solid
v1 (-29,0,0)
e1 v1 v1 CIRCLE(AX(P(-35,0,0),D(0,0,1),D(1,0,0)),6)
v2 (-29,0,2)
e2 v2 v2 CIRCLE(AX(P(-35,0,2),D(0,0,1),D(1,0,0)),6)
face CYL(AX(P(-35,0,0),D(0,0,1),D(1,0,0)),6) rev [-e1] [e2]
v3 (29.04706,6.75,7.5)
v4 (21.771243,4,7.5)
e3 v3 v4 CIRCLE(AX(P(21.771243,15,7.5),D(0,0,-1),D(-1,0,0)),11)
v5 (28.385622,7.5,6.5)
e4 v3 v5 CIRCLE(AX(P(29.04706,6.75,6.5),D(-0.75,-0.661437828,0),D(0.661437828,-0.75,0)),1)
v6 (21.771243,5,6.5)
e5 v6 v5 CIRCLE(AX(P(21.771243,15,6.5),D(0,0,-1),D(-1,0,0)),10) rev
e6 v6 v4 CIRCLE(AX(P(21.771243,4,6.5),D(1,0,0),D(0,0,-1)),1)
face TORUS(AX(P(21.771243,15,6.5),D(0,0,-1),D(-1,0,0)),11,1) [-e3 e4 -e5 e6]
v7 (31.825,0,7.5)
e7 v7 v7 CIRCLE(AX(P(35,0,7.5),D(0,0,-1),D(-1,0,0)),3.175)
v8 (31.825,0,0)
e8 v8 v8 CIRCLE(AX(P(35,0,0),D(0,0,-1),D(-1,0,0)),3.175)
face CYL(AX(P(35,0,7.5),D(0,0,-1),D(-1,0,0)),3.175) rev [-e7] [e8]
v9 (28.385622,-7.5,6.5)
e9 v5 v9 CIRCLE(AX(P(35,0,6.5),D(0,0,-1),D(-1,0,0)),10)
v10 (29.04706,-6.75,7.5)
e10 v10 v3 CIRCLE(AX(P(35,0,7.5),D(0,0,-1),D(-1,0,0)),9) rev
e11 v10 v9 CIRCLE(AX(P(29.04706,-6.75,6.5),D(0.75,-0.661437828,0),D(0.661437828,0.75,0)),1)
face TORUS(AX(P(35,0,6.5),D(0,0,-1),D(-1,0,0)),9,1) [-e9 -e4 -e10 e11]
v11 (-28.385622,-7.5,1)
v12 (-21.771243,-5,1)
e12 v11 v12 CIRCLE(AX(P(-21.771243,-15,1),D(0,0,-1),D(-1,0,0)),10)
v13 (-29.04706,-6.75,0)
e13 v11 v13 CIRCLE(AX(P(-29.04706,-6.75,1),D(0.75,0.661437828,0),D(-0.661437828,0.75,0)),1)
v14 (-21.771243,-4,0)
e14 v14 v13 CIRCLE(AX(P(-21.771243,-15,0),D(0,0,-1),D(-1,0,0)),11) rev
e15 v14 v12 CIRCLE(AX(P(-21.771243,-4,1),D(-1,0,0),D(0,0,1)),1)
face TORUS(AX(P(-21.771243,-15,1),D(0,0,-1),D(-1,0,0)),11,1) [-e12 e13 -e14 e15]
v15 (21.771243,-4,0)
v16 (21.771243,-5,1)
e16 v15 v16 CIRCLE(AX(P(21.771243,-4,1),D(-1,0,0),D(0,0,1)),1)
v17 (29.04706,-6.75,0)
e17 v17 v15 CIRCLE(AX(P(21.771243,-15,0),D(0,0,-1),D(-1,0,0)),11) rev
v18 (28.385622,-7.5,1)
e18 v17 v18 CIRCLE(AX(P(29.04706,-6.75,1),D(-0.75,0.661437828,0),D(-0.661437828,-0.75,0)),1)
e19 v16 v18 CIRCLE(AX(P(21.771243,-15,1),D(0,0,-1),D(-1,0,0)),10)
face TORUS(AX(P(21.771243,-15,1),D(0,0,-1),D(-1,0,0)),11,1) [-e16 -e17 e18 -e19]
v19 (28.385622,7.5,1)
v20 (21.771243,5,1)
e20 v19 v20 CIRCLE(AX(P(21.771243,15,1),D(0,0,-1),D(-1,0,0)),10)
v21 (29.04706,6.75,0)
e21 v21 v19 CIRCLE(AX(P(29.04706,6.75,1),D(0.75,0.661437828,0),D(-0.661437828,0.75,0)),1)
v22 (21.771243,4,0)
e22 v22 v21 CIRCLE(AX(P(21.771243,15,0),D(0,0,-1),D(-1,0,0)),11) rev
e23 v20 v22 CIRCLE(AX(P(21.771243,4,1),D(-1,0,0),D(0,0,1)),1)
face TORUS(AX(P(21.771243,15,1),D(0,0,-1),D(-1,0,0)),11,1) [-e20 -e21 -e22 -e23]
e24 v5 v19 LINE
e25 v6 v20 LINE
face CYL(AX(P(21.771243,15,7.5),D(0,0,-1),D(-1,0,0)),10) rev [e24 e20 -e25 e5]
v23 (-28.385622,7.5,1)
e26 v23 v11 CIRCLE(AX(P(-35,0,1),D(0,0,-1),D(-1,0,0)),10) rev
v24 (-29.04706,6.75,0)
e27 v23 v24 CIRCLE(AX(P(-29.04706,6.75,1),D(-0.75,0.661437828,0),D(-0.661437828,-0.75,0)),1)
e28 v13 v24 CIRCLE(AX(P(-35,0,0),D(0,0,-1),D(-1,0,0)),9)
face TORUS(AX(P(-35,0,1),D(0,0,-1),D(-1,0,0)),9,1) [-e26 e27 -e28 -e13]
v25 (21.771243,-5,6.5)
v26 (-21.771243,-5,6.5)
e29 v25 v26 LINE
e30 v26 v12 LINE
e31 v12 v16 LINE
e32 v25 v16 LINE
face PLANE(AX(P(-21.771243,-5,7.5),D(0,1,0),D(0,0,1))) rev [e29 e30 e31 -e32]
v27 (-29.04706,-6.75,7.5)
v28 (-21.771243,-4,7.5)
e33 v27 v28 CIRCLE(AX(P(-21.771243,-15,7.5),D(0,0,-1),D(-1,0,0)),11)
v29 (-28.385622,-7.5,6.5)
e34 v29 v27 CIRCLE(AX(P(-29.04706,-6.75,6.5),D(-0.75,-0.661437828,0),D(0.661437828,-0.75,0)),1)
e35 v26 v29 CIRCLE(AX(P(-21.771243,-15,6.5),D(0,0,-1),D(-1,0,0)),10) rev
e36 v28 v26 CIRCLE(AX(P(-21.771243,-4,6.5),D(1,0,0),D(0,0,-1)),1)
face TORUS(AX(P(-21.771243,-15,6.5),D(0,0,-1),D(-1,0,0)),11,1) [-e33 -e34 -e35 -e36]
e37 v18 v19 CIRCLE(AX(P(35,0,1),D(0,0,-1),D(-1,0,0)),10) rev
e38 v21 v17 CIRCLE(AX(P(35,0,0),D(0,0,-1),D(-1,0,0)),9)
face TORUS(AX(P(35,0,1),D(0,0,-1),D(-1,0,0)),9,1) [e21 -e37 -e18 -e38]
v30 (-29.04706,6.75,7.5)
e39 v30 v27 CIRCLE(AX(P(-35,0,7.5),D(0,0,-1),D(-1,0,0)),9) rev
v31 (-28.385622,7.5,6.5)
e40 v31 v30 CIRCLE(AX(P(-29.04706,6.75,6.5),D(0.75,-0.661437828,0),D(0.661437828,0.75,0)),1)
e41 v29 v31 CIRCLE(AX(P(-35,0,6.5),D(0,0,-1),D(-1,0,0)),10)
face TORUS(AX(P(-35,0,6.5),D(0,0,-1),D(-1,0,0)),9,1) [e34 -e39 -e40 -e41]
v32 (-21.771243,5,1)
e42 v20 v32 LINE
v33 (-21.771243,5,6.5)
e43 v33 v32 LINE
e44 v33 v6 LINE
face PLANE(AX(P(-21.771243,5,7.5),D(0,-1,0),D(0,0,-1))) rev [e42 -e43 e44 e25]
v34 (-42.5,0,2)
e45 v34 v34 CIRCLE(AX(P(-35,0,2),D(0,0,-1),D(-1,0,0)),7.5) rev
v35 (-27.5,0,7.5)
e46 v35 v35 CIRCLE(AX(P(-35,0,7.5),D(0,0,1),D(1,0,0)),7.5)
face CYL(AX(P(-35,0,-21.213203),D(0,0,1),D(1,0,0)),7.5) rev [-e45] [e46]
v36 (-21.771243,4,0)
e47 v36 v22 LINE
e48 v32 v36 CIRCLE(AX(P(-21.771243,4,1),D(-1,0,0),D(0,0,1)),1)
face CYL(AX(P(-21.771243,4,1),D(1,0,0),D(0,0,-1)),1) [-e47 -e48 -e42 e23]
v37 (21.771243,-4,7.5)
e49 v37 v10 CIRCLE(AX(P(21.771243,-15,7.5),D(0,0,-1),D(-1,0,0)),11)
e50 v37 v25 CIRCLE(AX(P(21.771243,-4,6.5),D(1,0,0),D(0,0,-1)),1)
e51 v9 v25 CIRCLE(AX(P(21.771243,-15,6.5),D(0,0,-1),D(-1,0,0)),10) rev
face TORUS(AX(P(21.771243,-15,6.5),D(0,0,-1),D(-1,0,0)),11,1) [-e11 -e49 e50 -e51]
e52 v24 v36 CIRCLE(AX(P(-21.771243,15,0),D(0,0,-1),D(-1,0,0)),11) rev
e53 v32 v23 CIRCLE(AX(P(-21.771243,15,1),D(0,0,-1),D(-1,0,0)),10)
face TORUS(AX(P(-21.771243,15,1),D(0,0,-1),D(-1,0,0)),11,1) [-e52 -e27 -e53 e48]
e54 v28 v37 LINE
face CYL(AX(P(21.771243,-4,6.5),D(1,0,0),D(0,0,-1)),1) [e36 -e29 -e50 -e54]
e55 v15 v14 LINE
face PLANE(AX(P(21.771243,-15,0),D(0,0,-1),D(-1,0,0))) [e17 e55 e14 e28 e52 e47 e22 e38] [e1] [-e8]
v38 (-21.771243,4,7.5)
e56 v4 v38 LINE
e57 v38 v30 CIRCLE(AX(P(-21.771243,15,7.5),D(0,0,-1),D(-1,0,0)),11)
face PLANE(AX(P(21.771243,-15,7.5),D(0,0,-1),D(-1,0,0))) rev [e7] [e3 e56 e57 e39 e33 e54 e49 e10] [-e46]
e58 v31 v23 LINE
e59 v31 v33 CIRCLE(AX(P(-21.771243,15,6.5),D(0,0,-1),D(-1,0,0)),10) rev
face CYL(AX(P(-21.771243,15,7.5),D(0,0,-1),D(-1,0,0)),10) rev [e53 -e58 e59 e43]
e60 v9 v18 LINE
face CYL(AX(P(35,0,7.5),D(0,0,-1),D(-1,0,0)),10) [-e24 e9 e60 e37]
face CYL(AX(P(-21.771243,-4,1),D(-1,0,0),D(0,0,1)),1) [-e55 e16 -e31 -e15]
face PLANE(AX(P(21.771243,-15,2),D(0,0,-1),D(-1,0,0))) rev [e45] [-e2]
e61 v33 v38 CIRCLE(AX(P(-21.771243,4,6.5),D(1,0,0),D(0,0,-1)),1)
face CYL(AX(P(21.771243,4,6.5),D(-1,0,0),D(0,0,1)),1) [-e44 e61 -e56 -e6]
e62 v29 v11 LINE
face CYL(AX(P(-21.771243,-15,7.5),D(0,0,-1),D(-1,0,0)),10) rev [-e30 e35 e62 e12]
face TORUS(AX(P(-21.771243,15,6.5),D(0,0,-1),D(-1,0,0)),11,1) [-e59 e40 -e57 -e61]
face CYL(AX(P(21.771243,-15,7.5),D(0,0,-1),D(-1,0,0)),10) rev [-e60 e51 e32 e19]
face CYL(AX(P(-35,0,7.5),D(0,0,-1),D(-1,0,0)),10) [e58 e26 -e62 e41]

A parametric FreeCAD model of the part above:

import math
import FreeCAD as App
import Part
import Sketcher
from FreeCAD import Vector


def edges_at(feature, points):
    """Names of the edges that pass closest to the given points."""
    edges = feature.Shape.Edges
    near = lambda p: min(range(len(edges)), key=lambda i: edges[i].distToShape(Part.Vertex(*p))[0])
    return sorted({f"Edge{near(p) + 1}" for p in points})

doc = App.newDocument("Part")
body = doc.addObject("PartDesign::Body", "Body")

# Sketch on XY plane
sketch1 = doc.addObject("Sketcher::SketchObject", "Sketch")
body.addObject(sketch1)
sketch1.AttachmentSupport = (doc.XY_Plane, [""])
sketch1.MapMode = "FlatFace"
sketch1.addGeometry([
    Part.LineSegment(Vector(21.771243, 5, 0), Vector(-21.771243, 5, 0)),  # 0
    Part.ArcOfCircle(Part.Circle(Vector(-21.771243, 15, 0), Vector(0, 0, 1), 10), math.radians(-131.409622), math.radians(-90)),  # 1
    Part.ArcOfCircle(Part.Circle(Vector(-35, 0, 0), Vector(0, 0, 1), 10), math.radians(48.590378), math.radians(311.409622)),  # 2
    Part.ArcOfCircle(Part.Circle(Vector(-21.771243, -15, 0), Vector(0, 0, 1), 10), math.radians(90), math.radians(131.409622)),  # 3
    Part.LineSegment(Vector(-21.771243, -5, 0), Vector(21.771243, -5, 0)),  # 4
    Part.ArcOfCircle(Part.Circle(Vector(21.771243, -15, 0), Vector(0, 0, 1), 10), math.radians(48.590378), math.radians(90)),  # 5
    Part.ArcOfCircle(Part.Circle(Vector(35, 0, 0), Vector(0, 0, 1), 10), math.radians(-131.409622), math.radians(131.409622)),  # 6
    Part.ArcOfCircle(Part.Circle(Vector(21.771243, 15, 0), Vector(0, 0, 1), 10), math.radians(-90), math.radians(-48.590378)),  # 7
], False)
sketch1.addConstraint([
    Sketcher.Constraint("Tangent", 0, 2, 1, 2),
    Sketcher.Constraint("Tangent", 1, 1, 2, 1),
    Sketcher.Constraint("Tangent", 2, 2, 3, 2),
    Sketcher.Constraint("Tangent", 3, 1, 4, 1),
    Sketcher.Constraint("Tangent", 4, 2, 5, 2),
    Sketcher.Constraint("Tangent", 5, 1, 6, 1),
    Sketcher.Constraint("Tangent", 6, 2, 7, 2),
    Sketcher.Constraint("Tangent", 7, 1, 0, 1),
    Sketcher.Constraint("Horizontal", 0),
    Sketcher.Constraint("Horizontal", 4),
    Sketcher.Constraint("Equal", 1, 2),
    Sketcher.Constraint("Equal", 2, 3),
    Sketcher.Constraint("Equal", 3, 5),
    Sketcher.Constraint("Equal", 5, 6),
    Sketcher.Constraint("Equal", 6, 7),
    Sketcher.Constraint("Symmetric", 1, 3, 5, 3, -1, 1),
    Sketcher.Constraint("Symmetric", 2, 3, 6, 3, -2),
    Sketcher.Constraint("Radius", 1, 10.0),
    Sketcher.Constraint("DistanceY", -1, 1, 1, 3, 15.0),
    Sketcher.Constraint("DistanceX", 2, 3, -1, 1, 35.0),
])
pad1 = doc.addObject("PartDesign::Pad", "Pad")
body.addObject(pad1)
pad1.Profile = sketch1
pad1.Length = 7.5

# Sketch on XY plane
sketch2 = doc.addObject("Sketcher::SketchObject", "Sketch001")
body.addObject(sketch2)
sketch2.AttachmentSupport = (doc.XY_Plane, [""])
sketch2.MapMode = "FlatFace"
sketch2.AttachmentOffset = App.Placement(Vector(0, 0, 7.5), App.Rotation())
sketch2.addGeometry(Part.Circle(Vector(-35, 0, 0), Vector(0, 0, 1), 7.5), False)
sketch2.addConstraint([
    Sketcher.Constraint("PointOnObject", 0, 3, -1),
    Sketcher.Constraint("Diameter", 0, 15.0),
    Sketcher.Constraint("DistanceX", 0, 3, -1, 1, 35.0),
])
pocket1 = doc.addObject("PartDesign::Pocket", "Pocket")
body.addObject(pocket1)
pocket1.Profile = sketch2
pocket1.Length = 5.5

# Sketch on XY plane
sketch3 = doc.addObject("Sketcher::SketchObject", "Sketch002")
body.addObject(sketch3)
sketch3.AttachmentSupport = (doc.XY_Plane, [""])
sketch3.MapMode = "FlatFace"
sketch3.AttachmentOffset = App.Placement(Vector(0, 0, 2), App.Rotation())
sketch3.addGeometry(Part.Circle(Vector(-35, 0, 0), Vector(0, 0, 1), 6), False)
sketch3.addConstraint([
    Sketcher.Constraint("PointOnObject", 0, 3, -1),
    Sketcher.Constraint("Diameter", 0, 12.0),
    Sketcher.Constraint("DistanceX", 0, 3, -1, 1, 35.0),
])
pocket2 = doc.addObject("PartDesign::Pocket", "Pocket001")
body.addObject(pocket2)
pocket2.Profile = sketch3
pocket2.Type = "ThroughAll"

# Sketch on XY plane
sketch4 = doc.addObject("Sketcher::SketchObject", "Sketch003")
body.addObject(sketch4)
sketch4.AttachmentSupport = (doc.XY_Plane, [""])
sketch4.MapMode = "FlatFace"
sketch4.addGeometry(Part.Circle(Vector(35, 0, 0), Vector(0, 0, 1), 3.175), False)
sketch4.addConstraint([
    Sketcher.Constraint("PointOnObject", 0, 3, -1),
    Sketcher.Constraint("Diameter", 0, 6.35),
    Sketcher.Constraint("DistanceX", -1, 1, 0, 3, 35.0),
])
pocket3 = doc.addObject("PartDesign::Pocket", "Pocket002")
body.addObject(pocket3)
pocket3.Profile = sketch4
pocket3.Type = "ThroughAll"
pocket3.Reversed = True
doc.recompute()

fillet = doc.addObject("PartDesign::Fillet", "Fillet")
body.addObject(fillet)
fillet.Base = (pocket3, edges_at(pocket3, [
    (25.307, 5.646, 7.5),
    (45, 0, 0),
    (25.307, -5.646, 0),
    (0, 5, 7.5),
    (-25.307, 5.646, 7.5),
    (-45, 0, 7.5),
    (-25.307, -5.646, 7.5),
    (0, -5, 7.5),
    (25.307, -5.646, 7.5),
    (45, 0, 7.5),
    (0, -5, 0),
    (-25.307, -5.646, 0),
    (-45, 0, 0),
    (-25.307, 5.646, 0),
    (0, 5, 0),
    (25.307, 5.646, 0),
]))
fillet.Radius = 1

doc.recompute()
